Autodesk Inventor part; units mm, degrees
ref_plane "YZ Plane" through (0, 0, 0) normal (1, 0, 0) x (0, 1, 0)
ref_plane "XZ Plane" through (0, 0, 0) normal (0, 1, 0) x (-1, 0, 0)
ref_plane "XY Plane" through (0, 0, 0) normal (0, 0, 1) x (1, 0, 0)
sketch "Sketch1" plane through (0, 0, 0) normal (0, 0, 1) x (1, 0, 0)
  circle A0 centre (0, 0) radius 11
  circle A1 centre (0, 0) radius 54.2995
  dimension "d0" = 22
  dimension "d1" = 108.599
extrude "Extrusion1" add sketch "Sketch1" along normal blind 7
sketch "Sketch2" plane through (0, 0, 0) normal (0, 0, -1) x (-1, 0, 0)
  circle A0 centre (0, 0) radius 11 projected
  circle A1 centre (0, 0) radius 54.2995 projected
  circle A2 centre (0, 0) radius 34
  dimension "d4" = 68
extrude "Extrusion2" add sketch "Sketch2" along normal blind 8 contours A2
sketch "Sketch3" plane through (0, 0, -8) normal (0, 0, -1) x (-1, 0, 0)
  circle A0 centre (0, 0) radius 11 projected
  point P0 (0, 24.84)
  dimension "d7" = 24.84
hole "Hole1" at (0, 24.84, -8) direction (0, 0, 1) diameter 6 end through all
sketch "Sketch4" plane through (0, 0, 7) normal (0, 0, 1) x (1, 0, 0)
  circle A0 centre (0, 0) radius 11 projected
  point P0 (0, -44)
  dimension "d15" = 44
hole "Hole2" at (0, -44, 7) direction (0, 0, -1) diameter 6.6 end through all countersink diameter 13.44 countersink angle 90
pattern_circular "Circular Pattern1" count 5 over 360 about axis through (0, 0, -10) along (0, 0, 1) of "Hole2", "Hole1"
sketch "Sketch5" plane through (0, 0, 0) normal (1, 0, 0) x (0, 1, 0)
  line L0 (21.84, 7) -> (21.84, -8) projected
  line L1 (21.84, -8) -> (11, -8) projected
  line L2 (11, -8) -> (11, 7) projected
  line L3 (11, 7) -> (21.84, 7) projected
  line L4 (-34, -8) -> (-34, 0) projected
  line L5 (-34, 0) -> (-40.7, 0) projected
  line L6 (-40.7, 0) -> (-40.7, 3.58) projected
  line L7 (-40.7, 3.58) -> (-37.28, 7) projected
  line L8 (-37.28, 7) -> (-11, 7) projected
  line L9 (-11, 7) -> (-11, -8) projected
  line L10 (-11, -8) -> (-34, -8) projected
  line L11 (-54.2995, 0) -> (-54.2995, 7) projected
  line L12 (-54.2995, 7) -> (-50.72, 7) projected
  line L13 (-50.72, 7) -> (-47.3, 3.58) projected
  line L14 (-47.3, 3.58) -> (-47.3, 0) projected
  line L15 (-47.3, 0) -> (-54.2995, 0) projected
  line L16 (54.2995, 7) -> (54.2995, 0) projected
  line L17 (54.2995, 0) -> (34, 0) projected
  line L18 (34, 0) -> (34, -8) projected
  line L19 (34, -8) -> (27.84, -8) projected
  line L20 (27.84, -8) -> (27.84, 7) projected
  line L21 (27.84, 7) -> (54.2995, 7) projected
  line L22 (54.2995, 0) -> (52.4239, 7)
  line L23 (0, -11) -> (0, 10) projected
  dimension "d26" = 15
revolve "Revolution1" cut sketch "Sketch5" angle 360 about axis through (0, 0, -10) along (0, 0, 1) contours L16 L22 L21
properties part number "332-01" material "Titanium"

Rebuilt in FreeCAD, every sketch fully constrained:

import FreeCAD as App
import Part
import Sketcher
from FreeCAD import Vector
Q = App.Units.Quantity


def add_polygon(sketch, points):
    """Adds a closed chain of lines whose ends are joined by coincident constraints."""
    first, n = sketch.GeometryCount, len(points)
    for a, b in zip(points, points[1:] + points[:1]):
        sketch.addGeometry(Part.LineSegment(App.Vector(*a, 0), App.Vector(*b, 0)), False)
    for i in range(n):
        sketch.addConstraint(Sketcher.Constraint("Coincident", first + i, 2, first + (i + 1) % n, 1))

doc = App.newDocument("Part")
body = doc.addObject("PartDesign::Body", "Body")

sketch1 = body.newObject("Sketcher::SketchObject", "Sketch")
sketch1.AttachmentSupport = (doc.getObject("XY_Plane"), [""])
sketch1.MapMode = "FlatFace"
sketch1.addGeometry(Part.Circle(Vector(0, 0, 0), Vector(0, 0, 1), 54), False)
sketch1.addGeometry(Part.Circle(Vector(0, 0, 0), Vector(0, 0, 1), 11), False)
sketch1.addConstraint(Sketcher.Constraint("Coincident", 0, 3, -1, 1))
sketch1.addConstraint(Sketcher.Constraint("Coincident", 1, 3, -1, 1))
sketch1.addConstraint(Sketcher.Constraint("Diameter", 1, 22.0))
sketch1.addConstraint(Sketcher.Constraint("Diameter", 0, 108.599))
pad1 = body.newObject("PartDesign::Pad", "Pad")
pad1.Profile = sketch1
pad1.Length = 7

sketch2 = body.newObject("Sketcher::SketchObject", "Sketch001")
sketch2.AttachmentSupport = (doc.getObject("XY_Plane"), [""])
sketch2.MapMode = "FlatFace"
sketch2.addGeometry(Part.Circle(Vector(0, 0, 0), Vector(0, 0, 1), 34), False)
sketch2.addGeometry(Part.Circle(Vector(0, 0, 0), Vector(0, 0, 1), 11), False)
sketch2.addConstraint(Sketcher.Constraint("Coincident", 0, 3, -1, 1))
sketch2.addConstraint(Sketcher.Constraint("Coincident", 1, 3, -1, 1))
sketch2.addConstraint(Sketcher.Constraint("Diameter", 0, 68.0))
sketch2.addConstraint(Sketcher.Constraint("Diameter", 1, 22.0))
pad2 = body.newObject("PartDesign::Pad", "Pad001")
pad2.Profile = sketch2
pad2.Length = 8
pad2.Reversed = True

sketch3 = body.newObject("Sketcher::SketchObject", "Sketch002")
sketch3.AttachmentSupport = (doc.getObject("XY_Plane"), [""])
sketch3.MapMode = "FlatFace"
sketch3.AttachmentOffset = App.Placement(Vector(0, 0, -8), App.Rotation())
sketch3.addGeometry(Part.Circle(Vector(0, 24.8, 0), Vector(0, 0, 1), 3), False)
sketch3.addConstraint(Sketcher.Constraint("PointOnObject", 0, 3, -2))
sketch3.addConstraint(Sketcher.Constraint("Diameter", 0, 6.0))
sketch3.addConstraint(Sketcher.Constraint("DistanceY", -1, 1, 0, 3, 24.84))
doc.recompute()
hole = body.newObject("PartDesign::Hole", "Hole")
hole.Profile = sketch3
hole.ThreadType = "None"
hole.Diameter = 6
hole.DepthType = "ThroughAll"
hole.Reversed = True

sketch4 = body.newObject("Sketcher::SketchObject", "Sketch003")
sketch4.AttachmentSupport = (doc.getObject("XY_Plane"), [""])
sketch4.MapMode = "FlatFace"
sketch4.AttachmentOffset = App.Placement(Vector(0, 0, 7), App.Rotation())
sketch4.addGeometry(Part.Circle(Vector(0, -44, 0), Vector(0, 0, 1), 3.3), False)
sketch4.addConstraint(Sketcher.Constraint("PointOnObject", 0, 3, -2))
sketch4.addConstraint(Sketcher.Constraint("Diameter", 0, 6.6))
sketch4.addConstraint(Sketcher.Constraint("DistanceY", 0, 3, -1, 1, 44.0))
doc.recompute()
hole2 = body.newObject("PartDesign::Hole", "Hole001")
hole2.Profile = sketch4
hole2.ThreadType = "None"
hole2.Diameter = 6.6
hole2.DepthType = "ThroughAll"
hole2.HoleCutType = "Countersink"
hole2.HoleCutDiameter = 13.44
hole2.HoleCutCountersinkAngle = 90
doc.recompute()

polarpattern = body.newObject("PartDesign::PolarPattern", "PolarPattern")
polarpattern.Originals = [hole2, hole]
polarpattern.Axis = (doc.getObject("Z_Axis"), [""])
polarpattern.Angle = 360
polarpattern.Occurrences = 5
body.Tip = polarpattern

sketch5 = body.newObject("Sketcher::SketchObject", "Sketch004")
sketch5.AttachmentSupport = (doc.getObject("YZ_Plane"), [""])
sketch5.MapMode = "FlatFace"
add_polygon(sketch5, [(54.3, 0), (54.3, 7), (52.4, 7)])
sketch5.addConstraint(Sketcher.Constraint("Vertical", 0))
sketch5.addConstraint(Sketcher.Constraint("Horizontal", 1))
sketch5.addConstraint(Sketcher.Constraint("PointOnObject", 2, 2, -1))
sketch5.addConstraint(Sketcher.Constraint("DistanceY", 0, 1, 0, 2, 7.0))
sketch5.addConstraint(Sketcher.Constraint("Angle", 2, Q("-75.0003 deg")))
sketch5.addConstraint(Sketcher.Constraint("DistanceX", -1, 1, 1, 2, 52.424))
groove = body.newObject("PartDesign::Groove", "Groove")
groove.Profile = sketch5
groove.ReferenceAxis = (sketch5, ["V_Axis"])
groove.Angle = 360

doc.recompute()
